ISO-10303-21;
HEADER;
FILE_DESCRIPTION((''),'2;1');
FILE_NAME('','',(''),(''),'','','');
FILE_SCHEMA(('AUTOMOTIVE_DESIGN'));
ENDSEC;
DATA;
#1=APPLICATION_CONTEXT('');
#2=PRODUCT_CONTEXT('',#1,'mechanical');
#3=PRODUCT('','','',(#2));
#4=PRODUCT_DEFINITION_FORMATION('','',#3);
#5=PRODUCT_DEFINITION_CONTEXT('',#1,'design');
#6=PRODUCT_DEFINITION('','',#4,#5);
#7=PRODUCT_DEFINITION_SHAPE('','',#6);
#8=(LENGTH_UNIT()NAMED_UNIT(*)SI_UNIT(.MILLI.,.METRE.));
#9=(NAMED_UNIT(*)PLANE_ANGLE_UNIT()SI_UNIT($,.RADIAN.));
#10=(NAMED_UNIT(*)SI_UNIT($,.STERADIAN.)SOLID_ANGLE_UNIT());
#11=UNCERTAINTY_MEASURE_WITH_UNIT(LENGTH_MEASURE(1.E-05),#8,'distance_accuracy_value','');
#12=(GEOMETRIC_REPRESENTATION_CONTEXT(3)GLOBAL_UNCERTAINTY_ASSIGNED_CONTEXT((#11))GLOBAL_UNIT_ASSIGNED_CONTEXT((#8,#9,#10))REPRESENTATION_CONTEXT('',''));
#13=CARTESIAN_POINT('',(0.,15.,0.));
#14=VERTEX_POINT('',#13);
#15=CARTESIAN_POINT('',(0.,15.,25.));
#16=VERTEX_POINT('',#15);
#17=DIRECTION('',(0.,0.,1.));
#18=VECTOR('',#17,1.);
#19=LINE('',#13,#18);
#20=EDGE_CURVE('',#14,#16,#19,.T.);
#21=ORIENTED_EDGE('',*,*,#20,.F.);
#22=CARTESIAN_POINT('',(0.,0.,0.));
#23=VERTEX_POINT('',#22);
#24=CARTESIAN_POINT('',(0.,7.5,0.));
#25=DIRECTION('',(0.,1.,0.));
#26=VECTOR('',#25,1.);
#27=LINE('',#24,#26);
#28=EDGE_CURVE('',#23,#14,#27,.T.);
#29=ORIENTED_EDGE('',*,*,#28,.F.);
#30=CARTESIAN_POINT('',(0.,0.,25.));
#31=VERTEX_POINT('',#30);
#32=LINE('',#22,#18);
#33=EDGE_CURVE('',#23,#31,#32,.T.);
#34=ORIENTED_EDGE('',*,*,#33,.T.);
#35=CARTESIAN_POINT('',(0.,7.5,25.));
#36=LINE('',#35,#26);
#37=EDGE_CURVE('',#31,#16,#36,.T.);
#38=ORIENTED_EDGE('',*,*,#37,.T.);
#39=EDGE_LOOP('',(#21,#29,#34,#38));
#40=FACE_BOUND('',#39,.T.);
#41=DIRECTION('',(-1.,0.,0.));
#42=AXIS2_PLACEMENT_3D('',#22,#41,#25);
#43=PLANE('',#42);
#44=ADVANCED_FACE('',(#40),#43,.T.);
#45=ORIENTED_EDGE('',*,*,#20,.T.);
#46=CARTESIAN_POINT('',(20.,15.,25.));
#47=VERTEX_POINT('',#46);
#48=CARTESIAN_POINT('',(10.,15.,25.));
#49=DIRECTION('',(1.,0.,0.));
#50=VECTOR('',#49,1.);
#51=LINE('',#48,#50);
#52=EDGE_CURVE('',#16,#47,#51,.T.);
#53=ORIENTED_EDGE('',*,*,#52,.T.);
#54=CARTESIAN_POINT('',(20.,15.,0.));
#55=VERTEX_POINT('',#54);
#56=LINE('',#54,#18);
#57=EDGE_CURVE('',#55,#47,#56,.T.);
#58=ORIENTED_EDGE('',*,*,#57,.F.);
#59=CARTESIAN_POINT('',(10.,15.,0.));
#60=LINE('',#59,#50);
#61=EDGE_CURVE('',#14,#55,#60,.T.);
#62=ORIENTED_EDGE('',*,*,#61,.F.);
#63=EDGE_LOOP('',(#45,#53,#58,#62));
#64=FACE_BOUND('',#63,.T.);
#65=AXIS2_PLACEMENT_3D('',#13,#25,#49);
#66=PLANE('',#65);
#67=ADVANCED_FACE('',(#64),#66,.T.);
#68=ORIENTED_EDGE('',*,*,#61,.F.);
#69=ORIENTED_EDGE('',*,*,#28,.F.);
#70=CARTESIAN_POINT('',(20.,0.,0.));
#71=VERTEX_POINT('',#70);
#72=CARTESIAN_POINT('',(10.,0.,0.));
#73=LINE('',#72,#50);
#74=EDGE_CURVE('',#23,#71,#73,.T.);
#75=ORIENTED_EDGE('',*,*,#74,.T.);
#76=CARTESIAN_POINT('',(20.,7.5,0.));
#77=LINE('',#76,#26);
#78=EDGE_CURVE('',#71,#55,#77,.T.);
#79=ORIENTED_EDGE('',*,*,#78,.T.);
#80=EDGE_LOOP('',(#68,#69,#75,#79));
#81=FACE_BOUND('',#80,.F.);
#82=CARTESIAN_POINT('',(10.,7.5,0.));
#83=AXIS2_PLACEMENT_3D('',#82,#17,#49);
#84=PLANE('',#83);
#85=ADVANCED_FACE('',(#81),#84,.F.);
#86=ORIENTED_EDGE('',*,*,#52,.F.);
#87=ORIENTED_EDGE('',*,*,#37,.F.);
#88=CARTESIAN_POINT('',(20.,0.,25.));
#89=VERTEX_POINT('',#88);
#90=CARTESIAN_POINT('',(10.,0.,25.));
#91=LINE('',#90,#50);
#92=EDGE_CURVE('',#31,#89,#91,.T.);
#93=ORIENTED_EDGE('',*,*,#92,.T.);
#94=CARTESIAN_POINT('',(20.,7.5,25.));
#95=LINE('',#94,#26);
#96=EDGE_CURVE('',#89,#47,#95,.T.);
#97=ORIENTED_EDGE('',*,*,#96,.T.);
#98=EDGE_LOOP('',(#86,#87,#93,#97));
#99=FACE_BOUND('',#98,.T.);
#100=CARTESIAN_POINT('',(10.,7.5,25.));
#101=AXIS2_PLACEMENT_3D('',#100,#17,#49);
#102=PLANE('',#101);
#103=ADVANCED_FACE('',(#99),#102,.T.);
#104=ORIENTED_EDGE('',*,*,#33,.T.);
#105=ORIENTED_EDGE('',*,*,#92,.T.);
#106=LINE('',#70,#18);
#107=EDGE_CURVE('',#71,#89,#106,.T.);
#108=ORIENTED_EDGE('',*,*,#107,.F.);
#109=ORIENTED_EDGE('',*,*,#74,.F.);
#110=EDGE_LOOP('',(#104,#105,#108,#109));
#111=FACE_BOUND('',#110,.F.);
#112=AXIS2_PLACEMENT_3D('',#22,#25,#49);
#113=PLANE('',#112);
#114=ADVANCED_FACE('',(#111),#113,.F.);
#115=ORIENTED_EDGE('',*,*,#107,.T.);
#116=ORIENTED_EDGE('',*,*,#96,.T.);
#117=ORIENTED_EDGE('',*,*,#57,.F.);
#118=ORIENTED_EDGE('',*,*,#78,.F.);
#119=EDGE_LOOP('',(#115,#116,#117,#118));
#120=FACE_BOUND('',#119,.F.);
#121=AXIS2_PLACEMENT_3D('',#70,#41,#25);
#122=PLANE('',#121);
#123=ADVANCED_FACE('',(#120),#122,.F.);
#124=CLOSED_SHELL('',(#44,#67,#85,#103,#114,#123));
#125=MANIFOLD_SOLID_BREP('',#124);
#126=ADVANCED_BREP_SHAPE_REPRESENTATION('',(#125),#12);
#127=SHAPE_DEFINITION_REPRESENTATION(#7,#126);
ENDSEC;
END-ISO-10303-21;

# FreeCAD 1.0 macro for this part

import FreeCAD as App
import Part
import Sketcher
Q = App.Units.Quantity

doc = App.newDocument("Part")
body = doc.addObject("PartDesign::Body", "Body")

# Sketch on XY plane
sketch1 = doc.addObject("Sketcher::SketchObject", "Sketch")
body.addObject(sketch1)
sketch1.AttachmentSupport = (doc.XY_Plane, [""])
sketch1.MapMode = "FlatFace"
sketch1.addGeometry([
    Part.LineSegment(App.Vector(0, 15, 0), App.Vector(0, 0, 0)),
    Part.LineSegment(App.Vector(0, 0, 0), App.Vector(20, 0, 0)),
    Part.LineSegment(App.Vector(20, 0, 0), App.Vector(20, 15, 0)),
    Part.LineSegment(App.Vector(20, 15, 0), App.Vector(0, 15, 0)),
], False)
sketch1.addConstraint([
    Sketcher.Constraint("Coincident", 0, 2, 1, 1),
    Sketcher.Constraint("Coincident", 1, 2, 2, 1),
    Sketcher.Constraint("Coincident", 2, 2, 3, 1),
    Sketcher.Constraint("Coincident", 3, 2, 0, 1),
    Sketcher.Constraint("Vertical", 0),
    Sketcher.Constraint("Horizontal", 1),
    Sketcher.Constraint("Vertical", 2),
    Sketcher.Constraint("Horizontal", 3),
    Sketcher.Constraint("Coincident", 0, 2, -1, 1),
    Sketcher.Constraint("DistanceX", 1, 1, 1, 2, Q("20 mm")),
    Sketcher.Constraint("DistanceY", 0, 2, 0, 1, Q("15 mm")),
])
pad1 = doc.addObject("PartDesign::Pad", "Pad")
body.addObject(pad1)
pad1.Profile = sketch1
pad1.Length = 25

doc.recompute()
